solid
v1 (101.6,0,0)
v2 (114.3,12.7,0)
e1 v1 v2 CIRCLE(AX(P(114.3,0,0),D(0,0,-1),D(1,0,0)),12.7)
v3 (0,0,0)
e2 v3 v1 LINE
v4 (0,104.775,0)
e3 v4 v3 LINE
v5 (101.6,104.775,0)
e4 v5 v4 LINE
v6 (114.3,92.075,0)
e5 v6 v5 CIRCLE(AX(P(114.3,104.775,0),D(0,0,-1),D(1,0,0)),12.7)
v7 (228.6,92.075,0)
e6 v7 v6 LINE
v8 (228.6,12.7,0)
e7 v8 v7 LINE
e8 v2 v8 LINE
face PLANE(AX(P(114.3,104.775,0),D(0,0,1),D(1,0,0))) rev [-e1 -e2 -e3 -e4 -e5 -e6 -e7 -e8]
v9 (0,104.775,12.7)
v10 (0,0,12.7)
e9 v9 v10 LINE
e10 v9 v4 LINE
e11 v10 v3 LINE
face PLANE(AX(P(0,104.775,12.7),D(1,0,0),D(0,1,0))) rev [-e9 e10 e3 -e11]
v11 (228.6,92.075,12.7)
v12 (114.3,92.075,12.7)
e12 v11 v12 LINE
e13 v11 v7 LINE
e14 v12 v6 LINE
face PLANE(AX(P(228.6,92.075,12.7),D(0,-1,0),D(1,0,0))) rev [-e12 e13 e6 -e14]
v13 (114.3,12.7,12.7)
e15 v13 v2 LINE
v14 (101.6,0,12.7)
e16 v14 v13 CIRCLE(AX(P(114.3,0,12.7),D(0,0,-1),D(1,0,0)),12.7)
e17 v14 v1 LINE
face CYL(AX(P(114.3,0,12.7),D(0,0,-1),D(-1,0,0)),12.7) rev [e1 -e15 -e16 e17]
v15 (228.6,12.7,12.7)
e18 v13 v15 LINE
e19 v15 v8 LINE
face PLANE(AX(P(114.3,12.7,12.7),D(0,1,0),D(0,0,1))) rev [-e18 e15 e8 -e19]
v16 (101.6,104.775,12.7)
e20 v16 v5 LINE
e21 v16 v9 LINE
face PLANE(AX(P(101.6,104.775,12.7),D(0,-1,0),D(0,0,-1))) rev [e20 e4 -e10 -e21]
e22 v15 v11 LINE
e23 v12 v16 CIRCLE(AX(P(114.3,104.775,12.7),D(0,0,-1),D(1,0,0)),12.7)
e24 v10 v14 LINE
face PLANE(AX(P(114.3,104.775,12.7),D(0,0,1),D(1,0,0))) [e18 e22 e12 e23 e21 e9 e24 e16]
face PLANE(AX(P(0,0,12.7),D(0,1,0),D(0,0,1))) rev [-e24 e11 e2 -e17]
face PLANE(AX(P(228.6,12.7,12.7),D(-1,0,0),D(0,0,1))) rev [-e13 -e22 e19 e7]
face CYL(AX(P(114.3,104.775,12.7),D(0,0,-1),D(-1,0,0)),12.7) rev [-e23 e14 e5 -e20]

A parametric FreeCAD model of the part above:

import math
import FreeCAD as App
import Part
import Sketcher
Q = App.Units.Quantity

doc = App.newDocument("Part")
body = doc.addObject("PartDesign::Body", "Body")

# Sketch on XY plane
sketch1 = body.newObject("Sketcher::SketchObject", "Sketch")
sketch1.AttachmentSupport = (doc.getObject("XY_Plane"), [""])
sketch1.MapMode = "FlatFace"
sketch1.addGeometry([
    Part.LineSegment(App.Vector(101.6, 104.775, 0), App.Vector(0, 104.775, 0)),  # 0
    Part.LineSegment(App.Vector(0, 104.775, 0), App.Vector(0, 0, 0)),  # 1
    Part.LineSegment(App.Vector(0, 0, 0), App.Vector(101.6, 0, 0)),  # 2
    Part.ArcOfCircle(Part.Circle(App.Vector(114.3, 0, 0), App.Vector(0, 0, 1), 12.7), math.radians(90), math.radians(180)),  # 3
    Part.LineSegment(App.Vector(114.3, 12.7, 0), App.Vector(228.6, 12.7, 0)),  # 4
    Part.LineSegment(App.Vector(228.6, 12.7, 0), App.Vector(228.6, 92.075, 0)),  # 5
    Part.LineSegment(App.Vector(228.6, 92.075, 0), App.Vector(114.3, 92.075, 0)),  # 6
    Part.ArcOfCircle(Part.Circle(App.Vector(114.3, 104.775, 0), App.Vector(0, 0, 1), 12.7), math.radians(180), math.radians(270)),  # 7
], False)
sketch1.addConstraint([
    Sketcher.Constraint("Coincident", 0, 2, 1, 1),
    Sketcher.Constraint("Coincident", 1, 2, 2, 1),
    Sketcher.Constraint("Coincident", 2, 2, 3, 2),
    Sketcher.Constraint("Tangent", 3, 1, 4, 1),
    Sketcher.Constraint("Coincident", 4, 2, 5, 1),
    Sketcher.Constraint("Coincident", 5, 2, 6, 1),
    Sketcher.Constraint("Tangent", 6, 2, 7, 2),
    Sketcher.Constraint("Coincident", 7, 1, 0, 1),
    Sketcher.Constraint("Horizontal", 0),
    Sketcher.Constraint("Vertical", 1),
    Sketcher.Constraint("Horizontal", 2),
    Sketcher.Constraint("Horizontal", 4),
    Sketcher.Constraint("Vertical", 5),
    Sketcher.Constraint("Horizontal", 6),
    Sketcher.Constraint("Coincident", 1, 2, -1, 1),
    Sketcher.Constraint("Equal", 3, 7),
    Sketcher.Constraint("PointOnObject", 3, 3, -1),
    Sketcher.Constraint("Horizontal", 7, 3, 0, 2),
    Sketcher.Constraint("Vertical", 3, 3, 7, 3),
    Sketcher.Constraint("Radius", 3, Q("0.5 in")),
    Sketcher.Constraint("DistanceX", 0, 2, 0, 1, Q("4 in")),
    Sketcher.Constraint("DistanceX", 4, 1, 4, 2, Q("4.5 in")),
    Sketcher.Constraint("DistanceY", 1, 2, 1, 1, Q("4.125 in")),
])
pad1 = body.newObject("PartDesign::Pad", "Pad")
pad1.Profile = sketch1
pad1.Length = Q("0.5 in")

doc.recompute()
